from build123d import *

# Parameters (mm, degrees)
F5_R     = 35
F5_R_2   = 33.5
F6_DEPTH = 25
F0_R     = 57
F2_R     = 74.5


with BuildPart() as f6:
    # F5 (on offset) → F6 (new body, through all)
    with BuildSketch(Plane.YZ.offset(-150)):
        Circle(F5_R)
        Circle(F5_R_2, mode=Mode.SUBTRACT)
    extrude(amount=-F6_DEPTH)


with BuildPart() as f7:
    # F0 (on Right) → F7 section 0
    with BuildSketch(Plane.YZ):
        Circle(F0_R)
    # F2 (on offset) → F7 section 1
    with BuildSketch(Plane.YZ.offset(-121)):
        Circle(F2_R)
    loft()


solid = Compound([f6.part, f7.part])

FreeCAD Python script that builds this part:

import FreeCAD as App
import Part
import Sketcher
from FreeCAD import Vector

doc = App.newDocument("Part")
body = doc.addObject("PartDesign::Body", "Body")

# Sketch on YZ plane
sketch1 = body.newObject("Sketcher::SketchObject", "Sketch")
sketch1.AttachmentSupport = (doc.getObject("YZ_Plane"), [""])
sketch1.MapMode = "FlatFace"
sketch1.AttachmentOffset = App.Placement(Vector(0, 0, -150), App.Rotation())
sketch1.addGeometry([
    Part.Circle(Vector(0, 0, 0), Vector(0, 0, 1), 35),
    Part.Circle(Vector(0, 0, 0), Vector(0, 0, 1), 34),
], False)
sketch1.addConstraint([
    Sketcher.Constraint("Coincident", 0, 3, -1, 1),
    Sketcher.Constraint("Coincident", 1, 3, -1, 1),
    Sketcher.Constraint("Diameter", 0, 70.0),
    Sketcher.Constraint("Diameter", 1, 67.0),
])
pad1 = body.newObject("PartDesign::Pad", "Pad")
pad1.Profile = sketch1
pad1.Length = 25
pad1.Reversed = True
body2 = doc.addObject("PartDesign::Body", "Body001")

# Sketch on YZ plane
sketch2 = body2.newObject("Sketcher::SketchObject", "Sketch001")
sketch2.AttachmentSupport = (doc.getObject("YZ_Plane001"), [""])
sketch2.MapMode = "FlatFace"
sketch2.addGeometry(Part.Circle(Vector(0, 0, 0), Vector(0, 0, 1), 57), False)
sketch2.addConstraint([
    Sketcher.Constraint("Coincident", 0, 3, -1, 1),
    Sketcher.Constraint("Diameter", 0, 114.0),
])

# Sketch on YZ plane
sketch3 = body2.newObject("Sketcher::SketchObject", "Sketch002")
sketch3.AttachmentSupport = (doc.getObject("YZ_Plane001"), [""])
sketch3.MapMode = "FlatFace"
sketch3.AttachmentOffset = App.Placement(Vector(0, 0, -121), App.Rotation())
sketch3.addGeometry(Part.Circle(Vector(0, 0, 0), Vector(0, 0, 1), 74), False)
sketch3.addConstraint([
    Sketcher.Constraint("Coincident", 0, 3, -1, 1),
    Sketcher.Constraint("Diameter", 0, 149.0),
])

additiveloft = body2.newObject("PartDesign::AdditiveLoft", "AdditiveLoft")
additiveloft.Profile = sketch2
additiveloft.Sections = [sketch3]

doc.recompute()
